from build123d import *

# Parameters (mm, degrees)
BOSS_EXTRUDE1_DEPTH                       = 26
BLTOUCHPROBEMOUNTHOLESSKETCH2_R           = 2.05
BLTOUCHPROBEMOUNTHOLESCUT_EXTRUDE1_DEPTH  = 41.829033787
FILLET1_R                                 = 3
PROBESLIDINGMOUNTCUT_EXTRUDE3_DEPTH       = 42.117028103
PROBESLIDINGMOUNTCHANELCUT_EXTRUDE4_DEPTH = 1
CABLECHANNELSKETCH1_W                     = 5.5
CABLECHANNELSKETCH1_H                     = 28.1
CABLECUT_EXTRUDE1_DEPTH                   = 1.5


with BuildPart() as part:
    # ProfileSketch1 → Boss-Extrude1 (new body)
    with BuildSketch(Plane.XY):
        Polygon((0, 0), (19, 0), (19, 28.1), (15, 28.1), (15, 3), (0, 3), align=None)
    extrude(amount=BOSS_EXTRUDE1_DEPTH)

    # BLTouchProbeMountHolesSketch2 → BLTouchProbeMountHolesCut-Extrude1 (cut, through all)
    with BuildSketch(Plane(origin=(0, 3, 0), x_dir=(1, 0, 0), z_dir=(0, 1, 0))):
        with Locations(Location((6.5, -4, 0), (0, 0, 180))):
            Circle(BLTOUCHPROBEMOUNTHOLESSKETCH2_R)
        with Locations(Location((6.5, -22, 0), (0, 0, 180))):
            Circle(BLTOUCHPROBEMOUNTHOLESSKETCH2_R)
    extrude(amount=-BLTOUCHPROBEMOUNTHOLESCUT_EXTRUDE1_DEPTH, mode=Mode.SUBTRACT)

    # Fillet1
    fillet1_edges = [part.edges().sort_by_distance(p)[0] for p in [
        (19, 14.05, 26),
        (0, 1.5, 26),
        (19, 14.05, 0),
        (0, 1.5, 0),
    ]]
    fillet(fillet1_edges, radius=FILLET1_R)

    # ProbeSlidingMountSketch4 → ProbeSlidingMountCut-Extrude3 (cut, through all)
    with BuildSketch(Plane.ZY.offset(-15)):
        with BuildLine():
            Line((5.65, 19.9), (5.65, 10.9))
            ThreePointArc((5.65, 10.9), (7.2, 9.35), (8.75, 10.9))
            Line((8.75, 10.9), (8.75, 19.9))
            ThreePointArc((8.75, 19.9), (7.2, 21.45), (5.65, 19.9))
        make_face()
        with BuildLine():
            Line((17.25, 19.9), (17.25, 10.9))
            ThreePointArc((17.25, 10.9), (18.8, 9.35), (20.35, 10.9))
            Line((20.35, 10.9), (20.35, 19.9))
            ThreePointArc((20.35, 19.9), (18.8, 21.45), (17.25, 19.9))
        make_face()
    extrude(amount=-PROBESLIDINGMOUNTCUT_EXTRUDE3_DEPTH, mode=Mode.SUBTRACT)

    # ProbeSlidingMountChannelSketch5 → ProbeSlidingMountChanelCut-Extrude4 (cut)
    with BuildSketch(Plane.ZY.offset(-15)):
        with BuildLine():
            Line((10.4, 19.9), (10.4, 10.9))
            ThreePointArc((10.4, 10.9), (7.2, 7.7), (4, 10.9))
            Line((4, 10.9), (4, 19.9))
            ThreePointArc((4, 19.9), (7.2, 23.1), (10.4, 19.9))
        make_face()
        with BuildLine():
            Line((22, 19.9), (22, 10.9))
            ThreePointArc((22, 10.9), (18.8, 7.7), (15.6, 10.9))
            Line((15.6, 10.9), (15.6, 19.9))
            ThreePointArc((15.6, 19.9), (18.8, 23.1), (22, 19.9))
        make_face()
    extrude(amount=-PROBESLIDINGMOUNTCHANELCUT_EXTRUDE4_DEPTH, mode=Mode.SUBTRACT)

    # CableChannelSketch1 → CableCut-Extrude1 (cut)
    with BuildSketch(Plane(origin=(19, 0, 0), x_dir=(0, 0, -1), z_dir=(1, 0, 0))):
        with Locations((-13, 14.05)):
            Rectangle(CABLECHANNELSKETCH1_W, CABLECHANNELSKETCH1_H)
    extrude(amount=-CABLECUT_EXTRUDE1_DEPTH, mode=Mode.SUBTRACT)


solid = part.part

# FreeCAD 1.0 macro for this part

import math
import FreeCAD as App
import Part
import Sketcher
from FreeCAD import Vector


def edges_at(feature, points):
    """Names of the edges that pass closest to the given points."""
    edges = feature.Shape.Edges
    near = lambda p: min(range(len(edges)), key=lambda i: edges[i].distToShape(Part.Vertex(*p))[0])
    return sorted({f"Edge{near(p) + 1}" for p in points})

doc = App.newDocument("Part")
params = doc.addObject("Spreadsheet::Sheet", "Params")
for row, (alias, value) in enumerate([
    ("sketch1_width", "19 mm"),
    ("sketch1_width2", "4 mm"),
    ("sketch1_height", "3 mm"),
    ("sketch1_height2", "28.1 mm"),
    ("pad1_length", "26 mm"),
    ("sketch2_diameter", "4.1 mm"),
    ("fillet_radius", "3 mm"),
    ("sketch3_width", "9 mm"),
    ("sketch3_radius", "1.55 mm"),
    ("sketch4_radius", "3.2 mm"),
    ("sketch4_width", "9 mm"),
    ("pocket3_length", "1 mm"),
    ("sketch5_width", "28.1 mm"),
    ("sketch5_height", "5.5 mm"),
    ("pocket4_length", "1.5 mm"),
], start=1):
    params.set(f"A{row}", alias)
    params.set(f"B{row}", "=" + value)
    params.setAlias(f"B{row}", alias)

body = doc.addObject("PartDesign::Body", "Body")

sketch1 = body.newObject("Sketcher::SketchObject", "Sketch")
sketch1.AttachmentSupport = (doc.getObject("XY_Plane"), [""])
sketch1.MapMode = "FlatFace"
sketch1.addGeometry(Part.LineSegment(Vector(0, 0, 0), Vector(19, 0, 0)), False)
sketch1.addGeometry(Part.LineSegment(Vector(19, 0, 0), Vector(19, 28.1, 0)), False)
sketch1.addGeometry(Part.LineSegment(Vector(19, 28.1, 0), Vector(15, 28.1, 0)), False)
sketch1.addGeometry(Part.LineSegment(Vector(15, 28.1, 0), Vector(15, 3, 0)), False)
sketch1.addGeometry(Part.LineSegment(Vector(15, 3, 0), Vector(0, 3, 0)), False)
sketch1.addGeometry(Part.LineSegment(Vector(0, 3, 0), Vector(0, 0, 0)), False)
sketch1.addConstraint(Sketcher.Constraint("Coincident", 0, 2, 1, 1))
sketch1.addConstraint(Sketcher.Constraint("Coincident", 1, 2, 2, 1))
sketch1.addConstraint(Sketcher.Constraint("Coincident", 2, 2, 3, 1))
sketch1.addConstraint(Sketcher.Constraint("Coincident", 3, 2, 4, 1))
sketch1.addConstraint(Sketcher.Constraint("Coincident", 4, 2, 5, 1))
sketch1.addConstraint(Sketcher.Constraint("Coincident", 5, 2, 0, 1))
sketch1.addConstraint(Sketcher.Constraint("Horizontal", 0))
sketch1.addConstraint(Sketcher.Constraint("Vertical", 1))
sketch1.addConstraint(Sketcher.Constraint("Horizontal", 2))
sketch1.addConstraint(Sketcher.Constraint("Vertical", 3))
sketch1.addConstraint(Sketcher.Constraint("Horizontal", 4))
sketch1.addConstraint(Sketcher.Constraint("Vertical", 5))
sketch1.addConstraint(Sketcher.Constraint("Coincident", 5, 2, -1, 1))
sketch1.addConstraint(Sketcher.Constraint("DistanceX", 0, 1, 0, 2, 19.0))
sketch1.addConstraint(Sketcher.Constraint("DistanceX", 2, 2, 2, 1, 4.0))
sketch1.addConstraint(Sketcher.Constraint("DistanceY", 5, 2, 5, 1, 3.0))
sketch1.addConstraint(Sketcher.Constraint("DistanceY", 1, 1, 1, 2, 28.1))
sketch1.setExpression("Constraints[13]", "Params.sketch1_width")
sketch1.setExpression("Constraints[14]", "Params.sketch1_width2")
sketch1.setExpression("Constraints[15]", "Params.sketch1_height")
sketch1.setExpression("Constraints[16]", "Params.sketch1_height2")
pad1 = body.newObject("PartDesign::Pad", "Pad")
pad1.Profile = sketch1
pad1.setExpression("Length", "Params.pad1_length")

sketch2 = body.newObject("Sketcher::SketchObject", "Sketch001")
sketch2.AttachmentSupport = (doc.getObject("XZ_Plane"), [""])
sketch2.MapMode = "FlatFace"
sketch2.AttachmentOffset = App.Placement(Vector(0, 0, -3), App.Rotation())
sketch2.addGeometry(Part.Circle(Vector(6.5, 4, 0), Vector(0, 0, 1), 2.05), False)
sketch2.addGeometry(Part.Circle(Vector(6.5, 22, 0), Vector(0, 0, 1), 2.05), False)
sketch2.addConstraint(Sketcher.Constraint("Equal", 0, 1))
sketch2.addConstraint(Sketcher.Constraint("Vertical", 0, 3, 1, 3))
sketch2.addConstraint(Sketcher.Constraint("Diameter", 0, 4.1))
sketch2.addConstraint(Sketcher.Constraint("DistanceY", -1, 1, 0, 3, 4.0))
sketch2.addConstraint(Sketcher.Constraint("DistanceY", -1, 1, 1, 3, 22.0))
sketch2.addConstraint(Sketcher.Constraint("DistanceX", -1, 1, 0, 3, 6.5))
sketch2.setExpression("Constraints[2]", "Params.sketch2_diameter")
pocket1 = body.newObject("PartDesign::Pocket", "Pocket")
pocket1.Profile = sketch2
pocket1.Type = "ThroughAll"
pocket1.Reversed = True
doc.recompute()

fillet = body.newObject("PartDesign::Fillet", "Fillet")
fillet.Base = (pocket1, edges_at(pocket1, [
    (19, 14.05, 26),
    (0, 1.5, 26),
    (19, 14.05, 0),
    (0, 1.5, 0),
]))
fillet.setExpression("Radius", "Params.fillet_radius")

sketch3 = body.newObject("Sketcher::SketchObject", "Sketch002")
sketch3.AttachmentSupport = (doc.getObject("YZ_Plane"), [""])
sketch3.MapMode = "FlatFace"
sketch3.AttachmentOffset = App.Placement(Vector(0, 0, 15), App.Rotation())
sketch3.addGeometry(Part.LineSegment(Vector(19.9, 5.65, 0), Vector(10.9, 5.65, 0)), False)
sketch3.addGeometry(Part.ArcOfCircle(Part.Circle(Vector(10.9, 7.2, 0), Vector(0, 0, 1), 1.55), math.radians(90), math.radians(270)), False)
sketch3.addGeometry(Part.LineSegment(Vector(10.9, 8.75, 0), Vector(19.9, 8.75, 0)), False)
sketch3.addGeometry(Part.ArcOfCircle(Part.Circle(Vector(19.9, 7.2, 0), Vector(0, 0, 1), 1.55), math.radians(-90), math.radians(90)), False)
sketch3.addGeometry(Part.LineSegment(Vector(19.9, 17.25, 0), Vector(10.9, 17.25, 0)), False)
sketch3.addGeometry(Part.ArcOfCircle(Part.Circle(Vector(10.9, 18.8, 0), Vector(0, 0, 1), 1.55), math.radians(90), math.radians(270)), False)
sketch3.addGeometry(Part.LineSegment(Vector(10.9, 20.35, 0), Vector(19.9, 20.35, 0)), False)
sketch3.addGeometry(Part.ArcOfCircle(Part.Circle(Vector(19.9, 18.8, 0), Vector(0, 0, 1), 1.55), math.radians(-90), math.radians(90)), False)
sketch3.addConstraint(Sketcher.Constraint("Tangent", 0, 2, 1, 2))
sketch3.addConstraint(Sketcher.Constraint("Tangent", 1, 1, 2, 1))
sketch3.addConstraint(Sketcher.Constraint("Tangent", 2, 2, 3, 2))
sketch3.addConstraint(Sketcher.Constraint("Tangent", 3, 1, 0, 1))
sketch3.addConstraint(Sketcher.Constraint("Tangent", 4, 2, 5, 2))
sketch3.addConstraint(Sketcher.Constraint("Tangent", 5, 1, 6, 1))
sketch3.addConstraint(Sketcher.Constraint("Tangent", 6, 2, 7, 2))
sketch3.addConstraint(Sketcher.Constraint("Tangent", 7, 1, 4, 1))
sketch3.addConstraint(Sketcher.Constraint("Horizontal", 0))
sketch3.addConstraint(Sketcher.Constraint("Horizontal", 2))
sketch3.addConstraint(Sketcher.Constraint("Horizontal", 4))
sketch3.addConstraint(Sketcher.Constraint("Horizontal", 6))
sketch3.addConstraint(Sketcher.Constraint("Equal", 3, 5))
sketch3.addConstraint(Sketcher.Constraint("Vertical", 1, 3, 5, 3))
sketch3.addConstraint(Sketcher.Constraint("Vertical", 3, 3, 7, 3))
sketch3.addConstraint(Sketcher.Constraint("DistanceX", 0, 2, 0, 1, 9.0))
sketch3.addConstraint(Sketcher.Constraint("Radius", 1, 1.55))
sketch3.addConstraint(Sketcher.Constraint("DistanceX", -1, 1, 1, 3, 10.9))
sketch3.addConstraint(Sketcher.Constraint("DistanceY", -1, 1, 1, 3, 7.2))
sketch3.addConstraint(Sketcher.Constraint("DistanceY", -1, 1, 5, 3, 18.8))
sketch3.setExpression("Constraints[15]", "Params.sketch3_width")
sketch3.setExpression("Constraints[16]", "Params.sketch3_radius")
pocket2 = body.newObject("PartDesign::Pocket", "Pocket001")
pocket2.Profile = sketch3
pocket2.Type = "ThroughAll"
pocket2.Reversed = True

sketch4 = body.newObject("Sketcher::SketchObject", "Sketch003")
sketch4.AttachmentSupport = (doc.getObject("YZ_Plane"), [""])
sketch4.MapMode = "FlatFace"
sketch4.AttachmentOffset = App.Placement(Vector(0, 0, 15), App.Rotation())
sketch4.addGeometry(Part.LineSegment(Vector(10.9, 10.4, 0), Vector(19.9, 10.4, 0)), False)
sketch4.addGeometry(Part.ArcOfCircle(Part.Circle(Vector(19.9, 7.2, 0), Vector(0, 0, 1), 3.2), math.radians(-90), math.radians(90)), False)
sketch4.addGeometry(Part.LineSegment(Vector(19.9, 4, 0), Vector(10.9, 4, 0)), False)
sketch4.addGeometry(Part.ArcOfCircle(Part.Circle(Vector(10.9, 7.2, 0), Vector(0, 0, 1), 3.2), math.radians(90), math.radians(270)), False)
sketch4.addGeometry(Part.LineSegment(Vector(10.9, 22, 0), Vector(19.9, 22, 0)), False)
sketch4.addGeometry(Part.ArcOfCircle(Part.Circle(Vector(19.9, 18.8, 0), Vector(0, 0, 1), 3.2), math.radians(-90), math.radians(90)), False)
sketch4.addGeometry(Part.LineSegment(Vector(19.9, 15.6, 0), Vector(10.9, 15.6, 0)), False)
sketch4.addGeometry(Part.ArcOfCircle(Part.Circle(Vector(10.9, 18.8, 0), Vector(0, 0, 1), 3.2), math.radians(90), math.radians(270)), False)
sketch4.addConstraint(Sketcher.Constraint("Tangent", 0, 2, 1, 2))
sketch4.addConstraint(Sketcher.Constraint("Tangent", 1, 1, 2, 1))
sketch4.addConstraint(Sketcher.Constraint("Tangent", 2, 2, 3, 2))
sketch4.addConstraint(Sketcher.Constraint("Tangent", 3, 1, 0, 1))
sketch4.addConstraint(Sketcher.Constraint("Tangent", 4, 2, 5, 2))
sketch4.addConstraint(Sketcher.Constraint("Tangent", 5, 1, 6, 1))
sketch4.addConstraint(Sketcher.Constraint("Tangent", 6, 2, 7, 2))
sketch4.addConstraint(Sketcher.Constraint("Tangent", 7, 1, 4, 1))
sketch4.addConstraint(Sketcher.Constraint("Horizontal", 0))
sketch4.addConstraint(Sketcher.Constraint("Horizontal", 2))
sketch4.addConstraint(Sketcher.Constraint("Horizontal", 4))
sketch4.addConstraint(Sketcher.Constraint("Horizontal", 6))
sketch4.addConstraint(Sketcher.Constraint("Equal", 3, 5))
sketch4.addConstraint(Sketcher.Constraint("Vertical", 1, 3, 5, 3))
sketch4.addConstraint(Sketcher.Constraint("Vertical", 3, 3, 7, 3))
sketch4.addConstraint(Sketcher.Constraint("Radius", 1, 3.2))
sketch4.addConstraint(Sketcher.Constraint("DistanceX", 0, 1, 0, 2, 9.0))
sketch4.addConstraint(Sketcher.Constraint("DistanceY", -1, 1, 1, 1, 4.0))
sketch4.addConstraint(Sketcher.Constraint("DistanceY", -1, 1, 4, 2, 22.0))
sketch4.addConstraint(Sketcher.Constraint("DistanceX", -1, 1, 1, 3, 19.9))
sketch4.setExpression("Constraints[15]", "Params.sketch4_radius")
sketch4.setExpression("Constraints[16]", "Params.sketch4_width")
pocket3 = body.newObject("PartDesign::Pocket", "Pocket002")
pocket3.Profile = sketch4
pocket3.setExpression("Length", "Params.pocket3_length")
pocket3.Reversed = True

sketch5 = body.newObject("Sketcher::SketchObject", "Sketch004")
sketch5.AttachmentSupport = (doc.getObject("YZ_Plane"), [""])
sketch5.MapMode = "FlatFace"
sketch5.AttachmentOffset = App.Placement(Vector(0, 0, 19), App.Rotation())
sketch5.addGeometry(Part.LineSegment(Vector(28.1, 15.75, 0), Vector(0, 15.75, 0)), False)
sketch5.addGeometry(Part.LineSegment(Vector(0, 15.75, 0), Vector(0, 10.25, 0)), False)
sketch5.addGeometry(Part.LineSegment(Vector(0, 10.25, 0), Vector(28.1, 10.25, 0)), False)
sketch5.addGeometry(Part.LineSegment(Vector(28.1, 10.25, 0), Vector(28.1, 15.75, 0)), False)
sketch5.addConstraint(Sketcher.Constraint("Coincident", 0, 2, 1, 1))
sketch5.addConstraint(Sketcher.Constraint("Coincident", 1, 2, 2, 1))
sketch5.addConstraint(Sketcher.Constraint("Coincident", 2, 2, 3, 1))
sketch5.addConstraint(Sketcher.Constraint("Coincident", 3, 2, 0, 1))
sketch5.addConstraint(Sketcher.Constraint("Horizontal", 0))
sketch5.addConstraint(Sketcher.Constraint("Vertical", 1))
sketch5.addConstraint(Sketcher.Constraint("Horizontal", 2))
sketch5.addConstraint(Sketcher.Constraint("Vertical", 3))
sketch5.addConstraint(Sketcher.Constraint("PointOnObject", 0, 2, -2))
sketch5.addConstraint(Sketcher.Constraint("DistanceX", 0, 2, 0, 1, 28.1))
sketch5.addConstraint(Sketcher.Constraint("DistanceY", 1, 2, 1, 1, 5.5))
sketch5.addConstraint(Sketcher.Constraint("DistanceY", -1, 1, 0, 2, 15.75))
sketch5.setExpression("Constraints[9]", "Params.sketch5_width")
sketch5.setExpression("Constraints[10]", "Params.sketch5_height")
pocket4 = body.newObject("PartDesign::Pocket", "Pocket003")
pocket4.Profile = sketch5
pocket4.setExpression("Length", "Params.pocket4_length")

doc.recompute()
